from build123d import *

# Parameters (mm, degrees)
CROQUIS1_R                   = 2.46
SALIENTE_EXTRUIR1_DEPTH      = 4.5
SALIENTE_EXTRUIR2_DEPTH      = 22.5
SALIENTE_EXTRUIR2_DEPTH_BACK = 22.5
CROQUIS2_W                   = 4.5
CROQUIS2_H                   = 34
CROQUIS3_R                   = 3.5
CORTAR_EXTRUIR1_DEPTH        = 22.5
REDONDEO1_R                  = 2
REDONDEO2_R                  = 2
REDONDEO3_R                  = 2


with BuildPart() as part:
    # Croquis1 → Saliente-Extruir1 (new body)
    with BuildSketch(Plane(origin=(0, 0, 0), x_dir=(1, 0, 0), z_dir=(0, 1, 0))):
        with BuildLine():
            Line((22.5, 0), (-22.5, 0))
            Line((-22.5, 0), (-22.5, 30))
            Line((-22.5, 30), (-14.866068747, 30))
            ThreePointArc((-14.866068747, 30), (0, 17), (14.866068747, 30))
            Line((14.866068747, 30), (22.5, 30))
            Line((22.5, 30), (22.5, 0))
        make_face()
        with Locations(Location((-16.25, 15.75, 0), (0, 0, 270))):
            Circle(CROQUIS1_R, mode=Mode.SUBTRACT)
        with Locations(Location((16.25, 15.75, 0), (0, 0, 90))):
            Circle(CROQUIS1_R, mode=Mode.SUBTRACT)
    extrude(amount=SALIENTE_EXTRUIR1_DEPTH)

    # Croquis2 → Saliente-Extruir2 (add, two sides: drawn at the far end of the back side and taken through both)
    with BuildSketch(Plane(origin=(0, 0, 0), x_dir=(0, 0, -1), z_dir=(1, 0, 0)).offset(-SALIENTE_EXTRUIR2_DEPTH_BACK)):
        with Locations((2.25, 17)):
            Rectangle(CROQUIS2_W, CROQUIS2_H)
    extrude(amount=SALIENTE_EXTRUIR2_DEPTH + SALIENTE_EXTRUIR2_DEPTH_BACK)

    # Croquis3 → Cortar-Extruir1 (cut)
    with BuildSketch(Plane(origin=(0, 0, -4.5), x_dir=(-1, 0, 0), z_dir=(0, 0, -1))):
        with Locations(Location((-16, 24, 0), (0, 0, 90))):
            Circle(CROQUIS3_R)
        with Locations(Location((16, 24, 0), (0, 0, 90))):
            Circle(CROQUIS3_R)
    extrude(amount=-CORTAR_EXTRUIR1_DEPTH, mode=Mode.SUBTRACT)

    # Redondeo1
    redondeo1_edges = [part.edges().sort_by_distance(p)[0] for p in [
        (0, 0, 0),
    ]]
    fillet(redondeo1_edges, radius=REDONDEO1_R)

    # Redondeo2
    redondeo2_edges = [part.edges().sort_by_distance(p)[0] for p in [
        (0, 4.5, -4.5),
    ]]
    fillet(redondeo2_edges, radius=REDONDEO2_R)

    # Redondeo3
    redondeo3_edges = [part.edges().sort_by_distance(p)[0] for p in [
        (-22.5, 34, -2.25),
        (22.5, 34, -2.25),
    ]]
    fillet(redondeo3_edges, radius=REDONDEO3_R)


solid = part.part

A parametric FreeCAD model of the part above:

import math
import FreeCAD as App
import Part
import Sketcher
from FreeCAD import Vector


def edges_at(feature, points):
    """Names of the edges that pass closest to the given points."""
    edges = feature.Shape.Edges
    near = lambda p: min(range(len(edges)), key=lambda i: edges[i].distToShape(Part.Vertex(*p))[0])
    return sorted({f"Edge{near(p) + 1}" for p in points})

doc = App.newDocument("Part")
params = doc.addObject("Spreadsheet::Sheet", "Params")
for row, (alias, value) in enumerate([
    ("sketch1_radius", "15 mm"),
    ("sketch1_diameter", "4.92 mm"),
    ("sketch1_width", "45 mm"),
    ("sketch1_height", "30 mm"),
    ("pad1_length", "4.5 mm"),
    ("sketch2_width", "34 mm"),
    ("sketch2_height", "4.5 mm"),
    ("pad2_length", "22.5 mm"),
    ("pad2_length2", "22.5 mm"),
    ("sketch3_diameter", "7 mm"),
    ("pocket1_length", "22.5 mm"),
    ("fillet_radius", "2 mm"),
    ("fillet2_radius", "2 mm"),
    ("fillet3_radius", "2 mm"),
], start=1):
    params.set(f"A{row}", alias)
    params.set(f"B{row}", "=" + value)
    params.setAlias(f"B{row}", alias)

body = doc.addObject("PartDesign::Body", "Body")

# Sketch on XZ plane
sketch1 = body.newObject("Sketcher::SketchObject", "Sketch")
sketch1.AttachmentSupport = (doc.getObject("XZ_Plane"), [""])
sketch1.MapMode = "FlatFace"
sketch1.addGeometry([
    Part.LineSegment(Vector(-22.5, 0, 0), Vector(22.5, 0, 0)),  # 0
    Part.LineSegment(Vector(22.5, 0, 0), Vector(22.5, -30, 0)),  # 1
    Part.LineSegment(Vector(22.5, -30, 0), Vector(14.866069, -30, 0)),  # 2
    Part.ArcOfCircle(Part.Circle(Vector(0, -32, 0), Vector(0, 0, 1), 15), math.radians(7.662256), math.radians(172.337744)),  # 3
    Part.LineSegment(Vector(-14.866069, -30, 0), Vector(-22.5, -30, 0)),  # 4
    Part.LineSegment(Vector(-22.5, -30, 0), Vector(-22.5, 0, 0)),  # 5
    Part.Circle(Vector(16.25, -15.75, 0), Vector(0, 0, 1), 2.46),  # 6
    Part.Circle(Vector(-16.25, -15.75, 0), Vector(0, 0, 1), 2.46),  # 7
], False)
sketch1.addConstraint([
    Sketcher.Constraint("Coincident", 0, 2, 1, 1),
    Sketcher.Constraint("Coincident", 1, 2, 2, 1),
    Sketcher.Constraint("Coincident", 2, 2, 3, 1),
    Sketcher.Constraint("Coincident", 3, 2, 4, 1),
    Sketcher.Constraint("Coincident", 4, 2, 5, 1),
    Sketcher.Constraint("Coincident", 5, 2, 0, 1),
    Sketcher.Constraint("Horizontal", 0),
    Sketcher.Constraint("Vertical", 1),
    Sketcher.Constraint("Horizontal", 2),
    Sketcher.Constraint("Horizontal", 4),
    Sketcher.Constraint("Vertical", 5),
    Sketcher.Constraint("Equal", 6, 7),
    Sketcher.Constraint("Symmetric", 0, 2, 5, 2, -1, 1),
    Sketcher.Constraint("Symmetric", 6, 3, 7, 3, -2),
    Sketcher.Constraint("Symmetric", 2, 2, 3, 2, -2),
    Sketcher.Constraint("Radius", 3, 15.0),
    Sketcher.Constraint("Diameter", 6, 4.92),
    Sketcher.Constraint("DistanceX", 0, 1, 0, 2, 45.0),
    Sketcher.Constraint("DistanceY", 1, 2, 1, 1, 30.0),
    Sketcher.Constraint("DistanceY", 3, 3, -1, 1, 32.0),
    Sketcher.Constraint("DistanceX", 7, 3, 6, 3, 32.5),
    Sketcher.Constraint("DistanceY", 6, 3, -1, 1, 15.75),
])
sketch1.setExpression("Constraints[15]", "Params.sketch1_radius")
sketch1.setExpression("Constraints[16]", "Params.sketch1_diameter")
sketch1.setExpression("Constraints[17]", "Params.sketch1_width")
sketch1.setExpression("Constraints[18]", "Params.sketch1_height")
pad1 = body.newObject("PartDesign::Pad", "Pad")
pad1.Profile = sketch1
pad1.setExpression("Length", "Params.pad1_length")
pad1.Reversed = True

# Sketch on YZ plane
sketch2 = body.newObject("Sketcher::SketchObject", "Sketch001")
sketch2.AttachmentSupport = (doc.getObject("YZ_Plane"), [""])
sketch2.MapMode = "FlatFace"
sketch2.addGeometry([
    Part.LineSegment(Vector(34, 0, 0), Vector(0, 0, 0)),
    Part.LineSegment(Vector(0, 0, 0), Vector(0, -4.5, 0)),
    Part.LineSegment(Vector(0, -4.5, 0), Vector(34, -4.5, 0)),
    Part.LineSegment(Vector(34, -4.5, 0), Vector(34, 0, 0)),
], False)
sketch2.addConstraint([
    Sketcher.Constraint("Coincident", 0, 2, 1, 1),
    Sketcher.Constraint("Coincident", 1, 2, 2, 1),
    Sketcher.Constraint("Coincident", 2, 2, 3, 1),
    Sketcher.Constraint("Coincident", 3, 2, 0, 1),
    Sketcher.Constraint("Horizontal", 0),
    Sketcher.Constraint("Vertical", 1),
    Sketcher.Constraint("Horizontal", 2),
    Sketcher.Constraint("Vertical", 3),
    Sketcher.Constraint("Coincident", 0, 2, -1, 1),
    Sketcher.Constraint("DistanceX", 0, 2, 0, 1, 34.0),
    Sketcher.Constraint("DistanceY", 1, 2, 1, 1, 4.5),
])
sketch2.setExpression("Constraints[9]", "Params.sketch2_width")
sketch2.setExpression("Constraints[10]", "Params.sketch2_height")
pad2 = body.newObject("PartDesign::Pad", "Pad001")
pad2.Profile = sketch2
pad2.Type = "TwoLengths"
pad2.setExpression("Length", "Params.pad2_length")
pad2.setExpression("Length2", "Params.pad2_length2")

# Sketch on XY plane
sketch3 = body.newObject("Sketcher::SketchObject", "Sketch002")
sketch3.AttachmentSupport = (doc.getObject("XY_Plane"), [""])
sketch3.MapMode = "FlatFace"
sketch3.AttachmentOffset = App.Placement(Vector(0, 0, -4.5), App.Rotation())
sketch3.addGeometry([
    Part.Circle(Vector(16, 24, 0), Vector(0, 0, 1), 3.5),
    Part.Circle(Vector(-16, 24, 0), Vector(0, 0, 1), 3.5),
], False)
sketch3.addConstraint([
    Sketcher.Constraint("Equal", 0, 1),
    Sketcher.Constraint("Symmetric", 0, 3, 1, 3, -2),
    Sketcher.Constraint("Diameter", 0, 7.0),
    Sketcher.Constraint("DistanceX", -1, 1, 0, 3, 16.0),
    Sketcher.Constraint("DistanceY", -1, 1, 0, 3, 24.0),
])
sketch3.setExpression("Constraints[2]", "Params.sketch3_diameter")
pocket1 = body.newObject("PartDesign::Pocket", "Pocket")
pocket1.Profile = sketch3
pocket1.setExpression("Length", "Params.pocket1_length")
pocket1.Reversed = True
doc.recompute()

fillet = body.newObject("PartDesign::Fillet", "Fillet")
fillet.Base = (pocket1, edges_at(pocket1, [(0, 0, 0)]))
fillet.setExpression("Radius", "Params.fillet_radius")
doc.recompute()

fillet2 = body.newObject("PartDesign::Fillet", "Fillet001")
fillet2.Base = (fillet, edges_at(fillet, [(0, 4.5, -4.5)]))
fillet2.setExpression("Radius", "Params.fillet2_radius")
doc.recompute()

fillet3 = body.newObject("PartDesign::Fillet", "Fillet002")
fillet3.Base = (fillet2, edges_at(fillet2, [(-22.5, 34, -2.25), (22.5, 34, -2.25)]))
fillet3.setExpression("Radius", "Params.fillet3_radius")

doc.recompute()
